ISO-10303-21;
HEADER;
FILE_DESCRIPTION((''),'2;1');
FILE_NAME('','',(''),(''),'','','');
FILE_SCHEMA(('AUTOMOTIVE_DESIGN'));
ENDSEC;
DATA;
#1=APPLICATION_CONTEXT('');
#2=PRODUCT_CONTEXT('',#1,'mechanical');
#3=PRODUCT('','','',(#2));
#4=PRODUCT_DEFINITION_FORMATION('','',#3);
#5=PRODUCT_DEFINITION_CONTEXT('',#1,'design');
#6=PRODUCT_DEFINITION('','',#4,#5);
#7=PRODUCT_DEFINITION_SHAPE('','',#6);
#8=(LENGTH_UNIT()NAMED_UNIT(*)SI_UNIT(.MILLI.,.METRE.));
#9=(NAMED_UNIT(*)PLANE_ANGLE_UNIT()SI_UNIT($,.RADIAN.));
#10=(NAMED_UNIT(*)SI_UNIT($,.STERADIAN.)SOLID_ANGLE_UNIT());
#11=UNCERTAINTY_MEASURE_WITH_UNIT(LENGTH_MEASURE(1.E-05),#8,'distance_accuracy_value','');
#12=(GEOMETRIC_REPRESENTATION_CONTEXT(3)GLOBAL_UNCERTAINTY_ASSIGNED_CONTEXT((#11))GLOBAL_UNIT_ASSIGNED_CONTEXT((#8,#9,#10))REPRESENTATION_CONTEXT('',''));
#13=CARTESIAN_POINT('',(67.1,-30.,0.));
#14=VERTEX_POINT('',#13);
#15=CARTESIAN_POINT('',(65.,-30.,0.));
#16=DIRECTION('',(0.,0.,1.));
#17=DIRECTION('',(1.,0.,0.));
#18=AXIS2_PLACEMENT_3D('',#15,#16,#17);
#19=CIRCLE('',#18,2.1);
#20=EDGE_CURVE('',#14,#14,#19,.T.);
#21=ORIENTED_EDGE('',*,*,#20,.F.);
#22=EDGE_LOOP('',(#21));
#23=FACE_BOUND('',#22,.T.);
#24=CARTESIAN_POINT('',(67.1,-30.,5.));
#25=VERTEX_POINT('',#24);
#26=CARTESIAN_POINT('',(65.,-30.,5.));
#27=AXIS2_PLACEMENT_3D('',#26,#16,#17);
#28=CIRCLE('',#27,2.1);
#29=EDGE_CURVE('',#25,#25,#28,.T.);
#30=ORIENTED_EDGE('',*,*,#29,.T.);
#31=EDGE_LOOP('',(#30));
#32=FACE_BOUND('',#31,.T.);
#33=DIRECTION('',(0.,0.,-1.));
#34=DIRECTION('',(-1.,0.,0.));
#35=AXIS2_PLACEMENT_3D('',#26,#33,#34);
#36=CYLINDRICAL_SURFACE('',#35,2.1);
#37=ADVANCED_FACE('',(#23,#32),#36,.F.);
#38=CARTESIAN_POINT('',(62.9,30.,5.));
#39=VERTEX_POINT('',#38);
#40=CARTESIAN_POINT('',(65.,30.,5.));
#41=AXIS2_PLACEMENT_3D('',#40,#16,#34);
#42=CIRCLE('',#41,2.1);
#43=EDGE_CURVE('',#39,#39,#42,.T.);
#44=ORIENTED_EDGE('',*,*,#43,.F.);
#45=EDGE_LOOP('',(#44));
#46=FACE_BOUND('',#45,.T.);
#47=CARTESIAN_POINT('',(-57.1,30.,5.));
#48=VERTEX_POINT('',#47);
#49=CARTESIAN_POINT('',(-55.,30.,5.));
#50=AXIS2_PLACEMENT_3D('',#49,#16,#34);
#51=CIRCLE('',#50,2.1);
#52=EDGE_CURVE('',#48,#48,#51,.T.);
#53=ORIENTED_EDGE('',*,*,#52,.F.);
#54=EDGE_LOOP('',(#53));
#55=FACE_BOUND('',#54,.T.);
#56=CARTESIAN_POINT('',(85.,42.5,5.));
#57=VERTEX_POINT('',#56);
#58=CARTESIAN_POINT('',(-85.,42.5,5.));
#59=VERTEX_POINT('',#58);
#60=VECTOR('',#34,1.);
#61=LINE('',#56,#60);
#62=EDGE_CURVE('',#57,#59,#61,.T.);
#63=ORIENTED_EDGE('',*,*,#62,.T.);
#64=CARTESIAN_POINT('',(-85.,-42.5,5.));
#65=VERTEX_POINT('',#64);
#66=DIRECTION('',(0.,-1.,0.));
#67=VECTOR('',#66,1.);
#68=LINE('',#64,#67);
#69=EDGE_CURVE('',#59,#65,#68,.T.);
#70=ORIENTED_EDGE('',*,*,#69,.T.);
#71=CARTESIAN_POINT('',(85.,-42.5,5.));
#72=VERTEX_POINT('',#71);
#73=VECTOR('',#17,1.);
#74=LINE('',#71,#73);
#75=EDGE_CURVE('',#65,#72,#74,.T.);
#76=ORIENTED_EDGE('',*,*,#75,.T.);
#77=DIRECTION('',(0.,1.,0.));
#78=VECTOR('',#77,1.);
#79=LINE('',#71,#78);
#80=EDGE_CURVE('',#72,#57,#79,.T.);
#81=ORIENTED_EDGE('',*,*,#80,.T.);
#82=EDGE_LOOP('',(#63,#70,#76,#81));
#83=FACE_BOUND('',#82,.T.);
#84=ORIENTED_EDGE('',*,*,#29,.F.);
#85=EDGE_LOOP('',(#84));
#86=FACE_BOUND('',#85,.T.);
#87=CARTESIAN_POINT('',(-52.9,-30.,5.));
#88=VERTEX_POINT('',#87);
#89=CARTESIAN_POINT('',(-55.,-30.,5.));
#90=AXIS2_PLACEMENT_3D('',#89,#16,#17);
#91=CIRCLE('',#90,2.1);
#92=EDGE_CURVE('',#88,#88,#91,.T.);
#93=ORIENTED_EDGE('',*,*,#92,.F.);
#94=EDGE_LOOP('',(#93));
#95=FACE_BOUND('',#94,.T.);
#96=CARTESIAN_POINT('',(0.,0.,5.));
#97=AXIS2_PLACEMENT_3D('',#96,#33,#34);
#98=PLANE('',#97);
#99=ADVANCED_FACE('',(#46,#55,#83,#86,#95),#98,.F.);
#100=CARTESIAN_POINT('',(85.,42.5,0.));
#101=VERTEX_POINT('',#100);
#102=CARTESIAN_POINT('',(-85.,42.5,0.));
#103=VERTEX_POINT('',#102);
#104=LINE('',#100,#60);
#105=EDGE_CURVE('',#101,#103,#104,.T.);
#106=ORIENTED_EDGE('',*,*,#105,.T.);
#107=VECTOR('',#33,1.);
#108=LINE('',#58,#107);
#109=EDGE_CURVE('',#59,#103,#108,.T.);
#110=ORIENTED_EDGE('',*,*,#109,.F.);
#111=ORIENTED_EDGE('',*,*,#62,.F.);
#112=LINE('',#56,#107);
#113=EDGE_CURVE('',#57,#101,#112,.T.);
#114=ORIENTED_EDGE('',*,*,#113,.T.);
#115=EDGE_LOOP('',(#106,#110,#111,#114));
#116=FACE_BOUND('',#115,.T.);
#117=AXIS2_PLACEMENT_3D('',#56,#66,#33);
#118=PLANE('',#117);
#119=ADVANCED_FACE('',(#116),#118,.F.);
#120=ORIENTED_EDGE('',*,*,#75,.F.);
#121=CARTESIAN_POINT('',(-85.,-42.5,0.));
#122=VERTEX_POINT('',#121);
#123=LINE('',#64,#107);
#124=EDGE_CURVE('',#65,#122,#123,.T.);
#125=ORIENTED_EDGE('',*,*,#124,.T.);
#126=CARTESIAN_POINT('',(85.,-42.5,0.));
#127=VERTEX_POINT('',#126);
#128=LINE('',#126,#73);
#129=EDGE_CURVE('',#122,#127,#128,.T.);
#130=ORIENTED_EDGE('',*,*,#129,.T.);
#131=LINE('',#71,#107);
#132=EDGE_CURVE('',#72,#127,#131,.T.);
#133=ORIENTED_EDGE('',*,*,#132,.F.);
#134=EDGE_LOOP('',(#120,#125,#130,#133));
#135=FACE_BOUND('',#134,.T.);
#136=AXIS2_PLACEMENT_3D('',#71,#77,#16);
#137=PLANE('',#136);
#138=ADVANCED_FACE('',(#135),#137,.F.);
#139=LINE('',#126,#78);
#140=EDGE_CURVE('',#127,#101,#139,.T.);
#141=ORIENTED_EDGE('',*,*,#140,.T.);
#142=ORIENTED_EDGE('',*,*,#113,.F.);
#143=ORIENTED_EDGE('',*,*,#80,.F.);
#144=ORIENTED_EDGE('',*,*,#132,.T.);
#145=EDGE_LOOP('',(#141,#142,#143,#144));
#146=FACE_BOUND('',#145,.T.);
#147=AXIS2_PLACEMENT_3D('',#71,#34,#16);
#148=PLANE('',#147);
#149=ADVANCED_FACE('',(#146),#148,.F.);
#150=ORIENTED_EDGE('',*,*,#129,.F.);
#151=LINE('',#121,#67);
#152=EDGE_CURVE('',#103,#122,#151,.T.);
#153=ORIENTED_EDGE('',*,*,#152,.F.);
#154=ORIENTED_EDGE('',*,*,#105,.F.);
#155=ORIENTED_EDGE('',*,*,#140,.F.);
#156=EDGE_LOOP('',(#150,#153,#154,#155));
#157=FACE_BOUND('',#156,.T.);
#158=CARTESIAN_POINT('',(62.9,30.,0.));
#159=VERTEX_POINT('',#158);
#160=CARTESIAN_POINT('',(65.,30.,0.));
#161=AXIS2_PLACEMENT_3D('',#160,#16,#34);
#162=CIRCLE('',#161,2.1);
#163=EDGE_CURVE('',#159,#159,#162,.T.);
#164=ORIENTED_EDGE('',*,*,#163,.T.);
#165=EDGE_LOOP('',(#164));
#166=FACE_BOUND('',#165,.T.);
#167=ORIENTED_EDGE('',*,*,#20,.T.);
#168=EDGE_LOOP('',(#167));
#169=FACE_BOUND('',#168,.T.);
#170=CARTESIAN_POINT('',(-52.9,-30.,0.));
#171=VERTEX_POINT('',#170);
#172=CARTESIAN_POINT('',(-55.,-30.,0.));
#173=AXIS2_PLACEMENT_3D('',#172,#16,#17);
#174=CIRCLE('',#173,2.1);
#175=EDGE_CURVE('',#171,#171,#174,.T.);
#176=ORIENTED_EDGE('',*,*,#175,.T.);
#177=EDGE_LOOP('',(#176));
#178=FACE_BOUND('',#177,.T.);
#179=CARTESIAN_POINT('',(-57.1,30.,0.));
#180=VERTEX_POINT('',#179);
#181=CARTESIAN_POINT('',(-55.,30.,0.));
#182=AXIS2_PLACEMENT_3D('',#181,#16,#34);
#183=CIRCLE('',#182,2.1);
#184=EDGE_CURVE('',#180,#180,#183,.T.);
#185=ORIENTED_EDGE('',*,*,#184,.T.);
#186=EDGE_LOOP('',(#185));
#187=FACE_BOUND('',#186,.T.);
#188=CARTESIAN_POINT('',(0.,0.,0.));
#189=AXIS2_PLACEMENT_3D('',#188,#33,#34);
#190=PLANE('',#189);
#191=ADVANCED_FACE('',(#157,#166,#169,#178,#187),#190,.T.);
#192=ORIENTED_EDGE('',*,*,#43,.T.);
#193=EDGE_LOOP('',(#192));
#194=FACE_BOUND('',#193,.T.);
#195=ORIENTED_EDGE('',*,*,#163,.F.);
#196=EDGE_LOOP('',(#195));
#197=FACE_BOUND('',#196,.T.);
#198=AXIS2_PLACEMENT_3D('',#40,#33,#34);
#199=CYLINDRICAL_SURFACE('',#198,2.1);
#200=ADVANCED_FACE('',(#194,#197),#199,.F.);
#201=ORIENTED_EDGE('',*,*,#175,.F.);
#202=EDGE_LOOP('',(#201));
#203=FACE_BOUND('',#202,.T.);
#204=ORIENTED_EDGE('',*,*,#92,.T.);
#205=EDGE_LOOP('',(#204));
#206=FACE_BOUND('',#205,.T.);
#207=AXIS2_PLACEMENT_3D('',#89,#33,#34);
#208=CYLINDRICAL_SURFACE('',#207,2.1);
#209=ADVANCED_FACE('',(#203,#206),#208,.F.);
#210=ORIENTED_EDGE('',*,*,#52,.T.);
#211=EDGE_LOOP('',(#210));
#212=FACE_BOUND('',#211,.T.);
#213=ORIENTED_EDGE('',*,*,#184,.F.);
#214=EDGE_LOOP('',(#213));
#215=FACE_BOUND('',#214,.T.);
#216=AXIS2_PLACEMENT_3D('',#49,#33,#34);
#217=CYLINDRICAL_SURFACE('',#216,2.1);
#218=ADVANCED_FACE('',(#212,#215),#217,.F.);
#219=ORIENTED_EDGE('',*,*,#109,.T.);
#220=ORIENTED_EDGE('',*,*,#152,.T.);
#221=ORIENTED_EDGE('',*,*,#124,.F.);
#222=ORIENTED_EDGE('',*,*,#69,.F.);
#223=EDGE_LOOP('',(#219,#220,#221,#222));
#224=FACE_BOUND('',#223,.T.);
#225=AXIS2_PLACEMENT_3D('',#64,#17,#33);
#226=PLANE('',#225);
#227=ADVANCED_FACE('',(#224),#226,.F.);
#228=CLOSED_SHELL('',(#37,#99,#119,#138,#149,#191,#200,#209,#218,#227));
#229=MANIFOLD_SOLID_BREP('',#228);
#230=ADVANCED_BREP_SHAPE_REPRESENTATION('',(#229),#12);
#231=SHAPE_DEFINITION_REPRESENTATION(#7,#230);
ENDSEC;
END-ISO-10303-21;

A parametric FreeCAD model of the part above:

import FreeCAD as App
import Part
import Sketcher

V = App.Vector


def add_polygon(sketch, points):
    """Adds a closed chain of lines whose ends are joined by coincident constraints."""
    first, n = sketch.GeometryCount, len(points)
    for a, b in zip(points, points[1:] + points[:1]):
        sketch.addGeometry(Part.LineSegment(App.Vector(*a, 0), App.Vector(*b, 0)), False)
    for i in range(n):
        sketch.addConstraint(Sketcher.Constraint("Coincident", first + i, 2, first + (i + 1) % n, 1))

doc = App.newDocument("Part")
body = doc.addObject("PartDesign::Body", "Body")

sketch1 = doc.addObject("Sketcher::SketchObject", "Sketch")
body.addObject(sketch1)
sketch1.AttachmentSupport = (doc.XY_Plane, [""])
sketch1.MapMode = "FlatFace"
add_polygon(sketch1, [(-85, -42.5), (85, -42.5), (85, 42.5), (-85, 42.5)])
sketch1.addGeometry(Part.Circle(V(65, -30, 0), V(0, 0, 1), 2.1), False)
sketch1.addGeometry(Part.Circle(V(65, 30, 0), V(0, 0, 1), 2.1), False)
sketch1.addGeometry(Part.Circle(V(-55, -30, 0), V(0, 0, 1), 2.1), False)
sketch1.addGeometry(Part.Circle(V(-55, 30, 0), V(0, 0, 1), 2.1), False)
sketch1.addConstraint(Sketcher.Constraint("Horizontal", 0))
sketch1.addConstraint(Sketcher.Constraint("Vertical", 1))
sketch1.addConstraint(Sketcher.Constraint("Horizontal", 2))
sketch1.addConstraint(Sketcher.Constraint("Vertical", 3))
sketch1.addConstraint(Sketcher.Constraint("Equal", 4, 5))
sketch1.addConstraint(Sketcher.Constraint("Equal", 5, 6))
sketch1.addConstraint(Sketcher.Constraint("Equal", 6, 7))
sketch1.addConstraint(Sketcher.Constraint("Symmetric", 0, 2, 2, 2, -1, 1))
sketch1.addConstraint(Sketcher.Constraint("Symmetric", 4, 3, 5, 3, -1))
sketch1.addConstraint(Sketcher.Constraint("Symmetric", 6, 3, 7, 3, -1))
sketch1.addConstraint(Sketcher.Constraint("Horizontal", 4, 3, 6, 3))
sketch1.addConstraint(Sketcher.Constraint("Diameter", 4, 4.2))
sketch1.addConstraint(Sketcher.Constraint("DistanceX", 0, 1, 0, 2, 170.0))
sketch1.addConstraint(Sketcher.Constraint("DistanceY", 1, 1, 1, 2, 85.0))
sketch1.addConstraint(Sketcher.Constraint("DistanceX", -1, 1, 4, 3, 65.0))
sketch1.addConstraint(Sketcher.Constraint("DistanceY", 4, 3, -1, 1, 30.0))
sketch1.addConstraint(Sketcher.Constraint("DistanceX", 6, 3, -1, 1, 55.0))
pad1 = doc.addObject("PartDesign::Pad", "Pad")
body.addObject(pad1)
pad1.Profile = sketch1
pad1.Length = 5

doc.recompute()
